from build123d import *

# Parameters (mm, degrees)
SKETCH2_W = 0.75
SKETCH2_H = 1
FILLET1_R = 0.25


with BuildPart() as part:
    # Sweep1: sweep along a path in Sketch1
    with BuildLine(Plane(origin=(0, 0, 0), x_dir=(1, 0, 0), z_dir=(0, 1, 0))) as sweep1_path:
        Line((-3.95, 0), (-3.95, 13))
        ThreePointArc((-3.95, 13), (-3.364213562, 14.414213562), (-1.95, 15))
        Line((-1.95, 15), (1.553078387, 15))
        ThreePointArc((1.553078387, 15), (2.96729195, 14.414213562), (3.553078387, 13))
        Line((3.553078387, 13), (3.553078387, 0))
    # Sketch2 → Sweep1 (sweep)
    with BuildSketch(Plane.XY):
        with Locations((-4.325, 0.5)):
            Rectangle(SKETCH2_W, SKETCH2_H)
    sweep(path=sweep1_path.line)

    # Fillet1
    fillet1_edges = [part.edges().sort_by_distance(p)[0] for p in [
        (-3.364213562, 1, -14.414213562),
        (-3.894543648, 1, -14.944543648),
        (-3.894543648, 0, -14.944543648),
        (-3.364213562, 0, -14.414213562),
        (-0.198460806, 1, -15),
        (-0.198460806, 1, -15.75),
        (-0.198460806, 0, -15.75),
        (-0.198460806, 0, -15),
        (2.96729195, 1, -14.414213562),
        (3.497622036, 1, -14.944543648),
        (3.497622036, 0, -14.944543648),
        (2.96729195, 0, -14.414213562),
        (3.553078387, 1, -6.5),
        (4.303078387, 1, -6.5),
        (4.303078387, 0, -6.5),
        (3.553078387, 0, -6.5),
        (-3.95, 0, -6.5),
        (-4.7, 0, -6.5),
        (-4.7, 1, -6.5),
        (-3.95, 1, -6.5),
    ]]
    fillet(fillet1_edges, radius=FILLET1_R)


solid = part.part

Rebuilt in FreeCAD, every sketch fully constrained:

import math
import FreeCAD as App
import Part
import Sketcher

V = App.Vector
Q = App.Units.Quantity


def edges_at(feature, points):
    """Names of the edges that pass closest to the given points."""
    edges = feature.Shape.Edges
    near = lambda p: min(range(len(edges)), key=lambda i: edges[i].distToShape(Part.Vertex(*p))[0])
    return sorted({f"Edge{near(p) + 1}" for p in points})


def add_polygon(sketch, points):
    """Adds a closed chain of lines whose ends are joined by coincident constraints."""
    first, n = sketch.GeometryCount, len(points)
    for a, b in zip(points, points[1:] + points[:1]):
        sketch.addGeometry(Part.LineSegment(App.Vector(*a, 0), App.Vector(*b, 0)), False)
    for i in range(n):
        sketch.addConstraint(Sketcher.Constraint("Coincident", first + i, 2, first + (i + 1) % n, 1))

doc = App.newDocument("Part")
body = doc.addObject("PartDesign::Body", "Body")

# Sketch on XY plane
sketch1 = doc.addObject("Sketcher::SketchObject", "Sketch")
body.addObject(sketch1)
sketch1.AttachmentSupport = (doc.XY_Plane, [""])
sketch1.MapMode = "FlatFace"
add_polygon(sketch1, [(-4.7, 1), (-4.7, 0), (-4, 0), (-4, 1)])  # lines 0-3
sketch1.addConstraint([
    Sketcher.Constraint("Vertical", 0),
    Sketcher.Constraint("Horizontal", 1),
    Sketcher.Constraint("Vertical", 2),
    Sketcher.Constraint("Horizontal", 3),
    Sketcher.Constraint("PointOnObject", 0, 2, -1),
    Sketcher.Constraint("DistanceY", 0, 2, 0, 1, Q("1 mm")),
    Sketcher.Constraint("DistanceX", 1, 1, 1, 2, Q("0.75 mm")),
    Sketcher.Constraint("DistanceX", 0, 2, -1, 1, Q("4.7 mm")),
])

# Sketch on XZ plane
sketch2 = doc.addObject("Sketcher::SketchObject", "Sketch001")
body.addObject(sketch2)
sketch2.AttachmentSupport = (doc.XZ_Plane, [""])
sketch2.MapMode = "FlatFace"
sketch2.addGeometry([
    Part.LineSegment(V(-4, 0, 0), V(-4, -13, 0)),  # 0
    Part.ArcOfCircle(Part.Circle(V(-1.9, -13, 0), V(0, 0, 1), 2), math.radians(-180), math.radians(-90)),  # 1
    Part.LineSegment(V(-1.9, -15, 0), V(1.6, -15, 0)),  # 2
    Part.ArcOfCircle(Part.Circle(V(1.6, -13, 0), V(0, 0, 1), 2), math.radians(-90), math.radians(0)),  # 3
    Part.LineSegment(V(3.6, -13, 0), V(3.6, 0, 0)),  # 4
], False)
sketch2.addConstraint([
    Sketcher.Constraint("Tangent", 0, 2, 1, 1),
    Sketcher.Constraint("Tangent", 1, 2, 2, 1),
    Sketcher.Constraint("Tangent", 2, 2, 3, 1),
    Sketcher.Constraint("Tangent", 3, 2, 4, 1),
    Sketcher.Constraint("Vertical", 0),
    Sketcher.Constraint("Horizontal", 2),
    Sketcher.Constraint("Vertical", 4),
    Sketcher.Constraint("Equal", 1, 3),
    Sketcher.Constraint("PointOnObject", 0, 1, -1),
    Sketcher.Constraint("PointOnObject", 4, 2, -1),
    Sketcher.Constraint("Radius", 1, Q("2 mm")),
    Sketcher.Constraint("DistanceY", 0, 2, 0, 1, Q("13 mm")),
    Sketcher.Constraint("DistanceX", 1, 3, -1, 1, Q("1.95 mm")),
    Sketcher.Constraint("DistanceX", 2, 1, 2, 2, Q("3.503078 mm")),
])
doc.recompute()

additivepipe = doc.addObject("PartDesign::AdditivePipe", "AdditivePipe")
body.addObject(additivepipe)
additivepipe.Profile = sketch1
additivepipe.Spine = (sketch2, ["Edge1", "Edge2", "Edge3", "Edge4", "Edge5"])
doc.recompute()

fillet = doc.addObject("PartDesign::Fillet", "Fillet")
body.addObject(fillet)
fillet.Base = (additivepipe, edges_at(additivepipe, [
    (-3.364, 1, -14.414),
    (-3.895, 1, -14.945),
    (-3.895, 0, -14.945),
    (-3.364, 0, -14.414),
    (-0.198, 1, -15),
    (-0.198, 1, -15.75),
    (-0.198, 0, -15.75),
    (-0.198, 0, -15),
    (2.967, 1, -14.414),
    (3.498, 1, -14.945),
    (3.498, 0, -14.945),
    (2.967, 0, -14.414),
    (3.553, 1, -6.5),
    (4.303, 1, -6.5),
    (4.303, 0, -6.5),
    (3.553, 0, -6.5),
    (-3.95, 0, -6.5),
    (-4.7, 0, -6.5),
    (-4.7, 1, -6.5),
    (-3.95, 1, -6.5),
]))
fillet.Radius = 0.25

doc.recompute()
